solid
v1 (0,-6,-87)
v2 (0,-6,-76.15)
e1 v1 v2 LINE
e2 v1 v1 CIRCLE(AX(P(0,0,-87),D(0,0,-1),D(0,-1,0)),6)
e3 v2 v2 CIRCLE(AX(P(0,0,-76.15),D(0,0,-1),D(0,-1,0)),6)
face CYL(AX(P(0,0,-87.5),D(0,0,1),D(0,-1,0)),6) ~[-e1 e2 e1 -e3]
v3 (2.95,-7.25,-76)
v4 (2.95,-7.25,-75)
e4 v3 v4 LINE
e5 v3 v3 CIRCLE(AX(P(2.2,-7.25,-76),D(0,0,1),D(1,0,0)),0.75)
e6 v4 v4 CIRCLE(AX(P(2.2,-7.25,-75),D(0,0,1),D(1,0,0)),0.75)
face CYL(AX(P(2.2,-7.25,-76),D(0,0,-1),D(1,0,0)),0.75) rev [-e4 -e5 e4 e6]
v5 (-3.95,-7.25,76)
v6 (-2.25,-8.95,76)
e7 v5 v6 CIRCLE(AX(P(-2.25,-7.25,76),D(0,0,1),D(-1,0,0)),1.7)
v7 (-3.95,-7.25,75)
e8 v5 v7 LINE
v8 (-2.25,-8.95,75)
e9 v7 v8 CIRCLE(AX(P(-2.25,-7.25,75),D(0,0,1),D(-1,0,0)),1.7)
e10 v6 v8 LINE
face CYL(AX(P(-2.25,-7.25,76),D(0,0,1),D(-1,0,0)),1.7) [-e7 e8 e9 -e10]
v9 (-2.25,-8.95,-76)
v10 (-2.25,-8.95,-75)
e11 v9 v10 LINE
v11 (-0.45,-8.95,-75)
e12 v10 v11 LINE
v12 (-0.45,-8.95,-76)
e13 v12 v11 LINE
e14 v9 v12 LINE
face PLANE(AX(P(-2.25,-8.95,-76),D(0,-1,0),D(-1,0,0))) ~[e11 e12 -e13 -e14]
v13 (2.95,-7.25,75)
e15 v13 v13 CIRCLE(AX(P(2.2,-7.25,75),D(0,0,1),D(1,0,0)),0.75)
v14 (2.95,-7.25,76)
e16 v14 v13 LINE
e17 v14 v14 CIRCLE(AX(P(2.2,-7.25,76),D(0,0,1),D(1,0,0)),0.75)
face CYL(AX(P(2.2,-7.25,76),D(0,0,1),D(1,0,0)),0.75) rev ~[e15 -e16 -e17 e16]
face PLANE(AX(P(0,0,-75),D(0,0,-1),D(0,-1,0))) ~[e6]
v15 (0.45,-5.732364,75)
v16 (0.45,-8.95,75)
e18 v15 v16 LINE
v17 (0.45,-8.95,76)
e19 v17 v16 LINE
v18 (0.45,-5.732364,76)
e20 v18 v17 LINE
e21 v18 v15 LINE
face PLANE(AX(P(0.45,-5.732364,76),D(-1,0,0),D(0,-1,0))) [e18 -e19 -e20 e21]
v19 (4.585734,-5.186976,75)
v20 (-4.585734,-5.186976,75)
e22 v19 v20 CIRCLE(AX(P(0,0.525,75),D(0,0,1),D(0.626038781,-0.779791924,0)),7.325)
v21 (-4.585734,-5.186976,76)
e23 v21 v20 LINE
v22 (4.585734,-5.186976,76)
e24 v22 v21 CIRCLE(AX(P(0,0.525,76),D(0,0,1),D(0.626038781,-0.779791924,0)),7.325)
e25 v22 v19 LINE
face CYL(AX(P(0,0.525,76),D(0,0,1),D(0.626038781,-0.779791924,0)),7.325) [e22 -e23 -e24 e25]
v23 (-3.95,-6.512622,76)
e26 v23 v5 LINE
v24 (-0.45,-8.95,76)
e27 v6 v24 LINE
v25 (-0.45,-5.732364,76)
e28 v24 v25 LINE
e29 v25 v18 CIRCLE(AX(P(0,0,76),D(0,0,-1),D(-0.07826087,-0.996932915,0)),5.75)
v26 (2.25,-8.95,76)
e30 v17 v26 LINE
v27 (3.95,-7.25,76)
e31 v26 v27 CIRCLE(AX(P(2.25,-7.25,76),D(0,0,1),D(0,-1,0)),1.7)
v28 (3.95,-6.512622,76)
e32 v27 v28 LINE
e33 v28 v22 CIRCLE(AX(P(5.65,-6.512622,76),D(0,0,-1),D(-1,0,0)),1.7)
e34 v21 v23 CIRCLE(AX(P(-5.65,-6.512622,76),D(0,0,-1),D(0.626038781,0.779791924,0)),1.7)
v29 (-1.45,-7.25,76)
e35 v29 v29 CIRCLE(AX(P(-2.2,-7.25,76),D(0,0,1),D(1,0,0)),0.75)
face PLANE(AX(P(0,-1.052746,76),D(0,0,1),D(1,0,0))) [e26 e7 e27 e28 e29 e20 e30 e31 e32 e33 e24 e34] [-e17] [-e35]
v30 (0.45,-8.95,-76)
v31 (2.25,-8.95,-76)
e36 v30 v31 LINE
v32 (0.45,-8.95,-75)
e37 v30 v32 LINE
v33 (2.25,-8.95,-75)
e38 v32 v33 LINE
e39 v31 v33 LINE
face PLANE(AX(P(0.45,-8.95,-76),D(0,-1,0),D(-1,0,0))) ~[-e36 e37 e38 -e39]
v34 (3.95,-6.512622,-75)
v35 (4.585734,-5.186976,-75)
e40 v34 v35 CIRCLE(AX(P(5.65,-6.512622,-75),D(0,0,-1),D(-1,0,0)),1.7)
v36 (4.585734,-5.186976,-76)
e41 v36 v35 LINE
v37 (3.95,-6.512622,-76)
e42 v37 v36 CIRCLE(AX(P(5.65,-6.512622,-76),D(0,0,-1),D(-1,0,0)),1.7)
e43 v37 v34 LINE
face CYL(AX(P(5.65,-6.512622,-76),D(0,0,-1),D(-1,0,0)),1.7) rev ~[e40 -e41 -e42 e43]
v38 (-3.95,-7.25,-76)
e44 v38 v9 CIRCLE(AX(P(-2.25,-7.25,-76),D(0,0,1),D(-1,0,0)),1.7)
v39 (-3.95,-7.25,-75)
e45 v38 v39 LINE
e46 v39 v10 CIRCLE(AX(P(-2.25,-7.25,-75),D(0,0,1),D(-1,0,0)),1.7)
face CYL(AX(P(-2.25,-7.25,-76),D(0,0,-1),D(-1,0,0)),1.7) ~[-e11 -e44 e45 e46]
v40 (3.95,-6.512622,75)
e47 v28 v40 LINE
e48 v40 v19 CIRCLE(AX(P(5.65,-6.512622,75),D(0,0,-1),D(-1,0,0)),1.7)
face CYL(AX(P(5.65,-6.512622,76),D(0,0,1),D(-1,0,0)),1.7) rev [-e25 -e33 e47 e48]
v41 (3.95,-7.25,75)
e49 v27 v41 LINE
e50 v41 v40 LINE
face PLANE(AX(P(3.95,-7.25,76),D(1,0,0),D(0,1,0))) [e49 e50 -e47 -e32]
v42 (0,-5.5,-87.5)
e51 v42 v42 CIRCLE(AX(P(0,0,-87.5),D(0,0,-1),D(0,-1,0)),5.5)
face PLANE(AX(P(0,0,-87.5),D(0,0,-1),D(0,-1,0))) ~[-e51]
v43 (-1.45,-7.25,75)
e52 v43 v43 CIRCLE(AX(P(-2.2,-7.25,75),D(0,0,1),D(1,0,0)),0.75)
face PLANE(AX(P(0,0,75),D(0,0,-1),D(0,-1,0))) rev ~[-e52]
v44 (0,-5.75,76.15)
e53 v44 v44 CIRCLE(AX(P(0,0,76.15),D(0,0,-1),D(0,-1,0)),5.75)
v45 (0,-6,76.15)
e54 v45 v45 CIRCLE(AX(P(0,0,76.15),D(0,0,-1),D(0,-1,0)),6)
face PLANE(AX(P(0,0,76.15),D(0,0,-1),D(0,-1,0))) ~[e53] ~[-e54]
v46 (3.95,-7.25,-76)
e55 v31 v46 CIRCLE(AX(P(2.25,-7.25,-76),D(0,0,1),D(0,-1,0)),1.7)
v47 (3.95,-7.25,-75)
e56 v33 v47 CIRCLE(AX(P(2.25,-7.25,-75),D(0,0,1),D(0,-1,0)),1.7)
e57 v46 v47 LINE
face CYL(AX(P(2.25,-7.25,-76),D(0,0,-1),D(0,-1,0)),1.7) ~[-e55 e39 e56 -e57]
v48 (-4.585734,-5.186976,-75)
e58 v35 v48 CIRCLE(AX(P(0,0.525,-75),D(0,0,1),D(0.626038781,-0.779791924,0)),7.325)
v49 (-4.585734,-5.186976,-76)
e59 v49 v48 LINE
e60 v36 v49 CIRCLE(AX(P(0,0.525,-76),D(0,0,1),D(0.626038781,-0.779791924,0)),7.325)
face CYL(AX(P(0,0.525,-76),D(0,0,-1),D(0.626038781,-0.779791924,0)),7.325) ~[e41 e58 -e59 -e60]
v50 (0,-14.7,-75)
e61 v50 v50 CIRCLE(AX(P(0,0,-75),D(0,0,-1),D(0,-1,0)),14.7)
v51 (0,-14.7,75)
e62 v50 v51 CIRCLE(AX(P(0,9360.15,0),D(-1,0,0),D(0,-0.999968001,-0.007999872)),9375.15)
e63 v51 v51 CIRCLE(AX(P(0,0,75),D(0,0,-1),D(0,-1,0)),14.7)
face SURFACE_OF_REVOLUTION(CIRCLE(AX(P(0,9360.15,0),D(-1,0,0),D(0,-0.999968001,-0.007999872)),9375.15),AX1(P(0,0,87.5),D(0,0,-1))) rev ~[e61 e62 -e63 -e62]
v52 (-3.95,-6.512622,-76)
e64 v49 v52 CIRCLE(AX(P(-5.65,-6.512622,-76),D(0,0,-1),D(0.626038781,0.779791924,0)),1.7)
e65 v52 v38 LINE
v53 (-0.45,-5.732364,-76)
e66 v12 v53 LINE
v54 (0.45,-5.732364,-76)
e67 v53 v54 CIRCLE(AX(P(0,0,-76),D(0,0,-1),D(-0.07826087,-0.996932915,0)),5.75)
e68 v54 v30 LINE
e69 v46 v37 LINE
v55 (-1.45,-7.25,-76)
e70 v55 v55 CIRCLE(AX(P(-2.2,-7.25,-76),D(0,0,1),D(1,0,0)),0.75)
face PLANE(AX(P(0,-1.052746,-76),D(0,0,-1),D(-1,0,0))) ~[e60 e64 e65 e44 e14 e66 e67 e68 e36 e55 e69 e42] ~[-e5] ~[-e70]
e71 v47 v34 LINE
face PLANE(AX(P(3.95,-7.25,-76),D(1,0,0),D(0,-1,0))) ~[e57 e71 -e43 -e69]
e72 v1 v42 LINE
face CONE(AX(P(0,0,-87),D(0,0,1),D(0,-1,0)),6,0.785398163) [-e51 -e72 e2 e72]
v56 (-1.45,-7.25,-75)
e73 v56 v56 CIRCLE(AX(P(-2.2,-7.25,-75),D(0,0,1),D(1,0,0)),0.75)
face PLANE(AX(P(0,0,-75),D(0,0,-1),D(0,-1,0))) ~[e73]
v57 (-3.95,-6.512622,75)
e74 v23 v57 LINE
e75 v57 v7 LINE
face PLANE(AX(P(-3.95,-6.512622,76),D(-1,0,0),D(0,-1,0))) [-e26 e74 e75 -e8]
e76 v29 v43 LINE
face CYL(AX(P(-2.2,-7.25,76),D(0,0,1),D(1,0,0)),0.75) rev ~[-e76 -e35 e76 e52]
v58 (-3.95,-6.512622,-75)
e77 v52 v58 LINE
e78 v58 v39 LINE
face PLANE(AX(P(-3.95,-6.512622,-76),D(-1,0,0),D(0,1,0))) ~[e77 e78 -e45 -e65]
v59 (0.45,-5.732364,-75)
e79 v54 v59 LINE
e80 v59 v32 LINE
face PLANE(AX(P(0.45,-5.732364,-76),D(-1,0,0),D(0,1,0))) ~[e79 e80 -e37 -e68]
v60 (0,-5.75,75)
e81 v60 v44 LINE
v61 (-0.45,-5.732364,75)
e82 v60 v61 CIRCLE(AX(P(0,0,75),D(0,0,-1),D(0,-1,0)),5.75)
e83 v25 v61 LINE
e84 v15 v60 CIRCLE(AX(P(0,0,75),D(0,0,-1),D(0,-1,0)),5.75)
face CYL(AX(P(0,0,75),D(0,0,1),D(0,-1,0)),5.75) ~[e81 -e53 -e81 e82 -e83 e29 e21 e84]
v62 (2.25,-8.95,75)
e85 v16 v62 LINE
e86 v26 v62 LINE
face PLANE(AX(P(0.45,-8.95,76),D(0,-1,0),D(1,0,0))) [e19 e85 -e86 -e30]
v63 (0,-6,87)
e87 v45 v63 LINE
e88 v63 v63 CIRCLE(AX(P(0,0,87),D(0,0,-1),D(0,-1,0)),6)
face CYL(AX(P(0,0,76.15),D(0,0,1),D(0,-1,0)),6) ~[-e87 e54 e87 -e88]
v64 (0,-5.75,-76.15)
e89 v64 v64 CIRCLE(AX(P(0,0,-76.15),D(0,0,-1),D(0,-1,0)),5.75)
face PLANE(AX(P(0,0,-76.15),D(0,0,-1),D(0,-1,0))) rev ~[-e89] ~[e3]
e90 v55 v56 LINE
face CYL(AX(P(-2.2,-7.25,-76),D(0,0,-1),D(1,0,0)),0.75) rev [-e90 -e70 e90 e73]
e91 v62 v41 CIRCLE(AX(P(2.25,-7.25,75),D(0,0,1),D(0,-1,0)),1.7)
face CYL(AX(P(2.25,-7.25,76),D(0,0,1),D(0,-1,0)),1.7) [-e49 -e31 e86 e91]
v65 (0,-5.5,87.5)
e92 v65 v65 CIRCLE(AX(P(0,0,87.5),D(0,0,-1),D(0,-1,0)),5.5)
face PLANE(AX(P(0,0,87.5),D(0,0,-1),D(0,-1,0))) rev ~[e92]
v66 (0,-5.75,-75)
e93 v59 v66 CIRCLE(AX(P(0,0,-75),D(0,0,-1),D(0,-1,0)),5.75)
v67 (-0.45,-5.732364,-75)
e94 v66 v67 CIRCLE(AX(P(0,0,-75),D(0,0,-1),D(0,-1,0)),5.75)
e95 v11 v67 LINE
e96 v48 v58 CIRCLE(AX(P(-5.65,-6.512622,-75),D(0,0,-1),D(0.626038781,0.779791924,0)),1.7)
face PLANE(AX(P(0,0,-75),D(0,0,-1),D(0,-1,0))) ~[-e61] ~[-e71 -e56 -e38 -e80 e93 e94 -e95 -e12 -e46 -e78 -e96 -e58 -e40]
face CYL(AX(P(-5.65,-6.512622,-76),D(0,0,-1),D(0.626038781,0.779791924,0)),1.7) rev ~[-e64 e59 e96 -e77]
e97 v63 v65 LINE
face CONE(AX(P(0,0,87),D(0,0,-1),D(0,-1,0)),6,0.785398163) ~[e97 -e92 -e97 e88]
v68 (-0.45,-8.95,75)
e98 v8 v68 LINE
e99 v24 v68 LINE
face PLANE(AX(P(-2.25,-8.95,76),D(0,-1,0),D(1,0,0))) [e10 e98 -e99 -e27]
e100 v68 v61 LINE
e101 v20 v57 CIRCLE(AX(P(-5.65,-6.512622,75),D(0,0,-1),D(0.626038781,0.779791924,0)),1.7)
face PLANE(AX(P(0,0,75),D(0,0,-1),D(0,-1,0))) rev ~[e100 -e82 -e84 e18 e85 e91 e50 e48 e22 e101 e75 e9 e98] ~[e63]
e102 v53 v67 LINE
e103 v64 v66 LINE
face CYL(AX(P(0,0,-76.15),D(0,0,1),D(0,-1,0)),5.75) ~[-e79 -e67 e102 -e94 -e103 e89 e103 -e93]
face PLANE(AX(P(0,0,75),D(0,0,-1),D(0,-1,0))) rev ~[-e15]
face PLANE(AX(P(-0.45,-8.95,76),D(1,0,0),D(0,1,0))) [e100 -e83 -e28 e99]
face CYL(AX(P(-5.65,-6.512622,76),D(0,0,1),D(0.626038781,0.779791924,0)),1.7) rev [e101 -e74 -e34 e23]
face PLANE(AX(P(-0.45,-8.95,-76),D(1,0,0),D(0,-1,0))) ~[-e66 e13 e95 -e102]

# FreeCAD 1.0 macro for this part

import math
import FreeCAD as App
import Part
import Sketcher
from FreeCAD import Vector
Q = App.Units.Quantity


def edges_at(feature, points):
    """Names of the edges that pass closest to the given points."""
    edges = feature.Shape.Edges
    near = lambda p: min(range(len(edges)), key=lambda i: edges[i].distToShape(Part.Vertex(*p))[0])
    return sorted({f"Edge{near(p) + 1}" for p in points})

doc = App.newDocument("Part")
params = doc.addObject("Spreadsheet::Sheet", "Params")
for row, (alias, value) in enumerate([
    ("sketch1_width", "6 mm"),
    ("sketch1_height", "175 mm"),
    ("sketch1_radius", "9375.15 mm"),
    ("sketch1_width2", "0.25 mm"),
    ("sketch1_width3", "8.95 mm"),
    ("revolution_angle", "360 deg"),
    ("sketch2_diameter", "1.5 mm"),
    ("sketch2_radius", "1.7 mm"),
    ("sketch2_radius2", "5.75 mm"),
    ("sketch2_width", "1.8 mm"),
    ("pad1_length", "1 mm"),
    ("chamfer_size", "0.5 mm"),
], start=1):
    params.set(f"A{row}", alias)
    params.set(f"B{row}", "=" + value)
    params.setAlias(f"B{row}", alias)

body = doc.addObject("PartDesign::Body", "Body")

sketch1 = body.newObject("Sketcher::SketchObject", "Sketch")
sketch1.AttachmentSupport = (doc.getObject("YZ_Plane"), [""])
sketch1.MapMode = "FlatFace"
sketch1.addGeometry(Part.LineSegment(Vector(6, -87.5, 0), Vector(6, -76.15, 0)), False)
sketch1.addGeometry(Part.LineSegment(Vector(6, -76.15, 0), Vector(5.75, -76.15, 0)), False)
sketch1.addGeometry(Part.LineSegment(Vector(5.75, -76.15, 0), Vector(5.75, -75, 0)), False)
sketch1.addGeometry(Part.LineSegment(Vector(5.75, -75, 0), Vector(14.7, -75, 0)), False)
sketch1.addGeometry(Part.ArcOfCircle(Part.Circle(Vector(-9360.15, 0, 0), Vector(0, 0, 1), 9375.15), math.radians(-0.46), math.radians(0.46)), False)
sketch1.addGeometry(Part.LineSegment(Vector(14.7, 75, 0), Vector(5.75, 75, 0)), False)
sketch1.addGeometry(Part.LineSegment(Vector(5.75, 75, 0), Vector(5.75, 76.15, 0)), False)
sketch1.addGeometry(Part.LineSegment(Vector(5.75, 76.15, 0), Vector(6, 76.15, 0)), False)
sketch1.addGeometry(Part.LineSegment(Vector(6, 76.15, 0), Vector(6, 87.5, 0)), False)
sketch1.addGeometry(Part.LineSegment(Vector(6, 87.5, 0), Vector(0, 87.5, 0)), False)
sketch1.addGeometry(Part.LineSegment(Vector(0, 87.5, 0), Vector(0, -87.5, 0)), False)
sketch1.addGeometry(Part.LineSegment(Vector(0, -87.5, 0), Vector(6, -87.5, 0)), False)
sketch1.addConstraint(Sketcher.Constraint("Coincident", 0, 2, 1, 1))
sketch1.addConstraint(Sketcher.Constraint("Coincident", 1, 2, 2, 1))
sketch1.addConstraint(Sketcher.Constraint("Coincident", 2, 2, 3, 1))
sketch1.addConstraint(Sketcher.Constraint("Coincident", 3, 2, 4, 1))
sketch1.addConstraint(Sketcher.Constraint("Coincident", 4, 2, 5, 1))
sketch1.addConstraint(Sketcher.Constraint("Coincident", 5, 2, 6, 1))
sketch1.addConstraint(Sketcher.Constraint("Coincident", 6, 2, 7, 1))
sketch1.addConstraint(Sketcher.Constraint("Coincident", 7, 2, 8, 1))
sketch1.addConstraint(Sketcher.Constraint("Coincident", 8, 2, 9, 1))
sketch1.addConstraint(Sketcher.Constraint("Coincident", 9, 2, 10, 1))
sketch1.addConstraint(Sketcher.Constraint("Coincident", 10, 2, 11, 1))
sketch1.addConstraint(Sketcher.Constraint("Coincident", 11, 2, 0, 1))
sketch1.addConstraint(Sketcher.Constraint("Vertical", 0))
sketch1.addConstraint(Sketcher.Constraint("Horizontal", 1))
sketch1.addConstraint(Sketcher.Constraint("Vertical", 2))
sketch1.addConstraint(Sketcher.Constraint("Horizontal", 3))
sketch1.addConstraint(Sketcher.Constraint("Horizontal", 5))
sketch1.addConstraint(Sketcher.Constraint("Vertical", 6))
sketch1.addConstraint(Sketcher.Constraint("Horizontal", 7))
sketch1.addConstraint(Sketcher.Constraint("Vertical", 8))
sketch1.addConstraint(Sketcher.Constraint("Horizontal", 9))
sketch1.addConstraint(Sketcher.Constraint("Vertical", 10))
sketch1.addConstraint(Sketcher.Constraint("Horizontal", 11))
sketch1.addConstraint(Sketcher.Constraint("Symmetric", 9, 2, 10, 2, -1, 1))
sketch1.addConstraint(Sketcher.Constraint("Symmetric", 2, 2, 5, 2, -1))
sketch1.addConstraint(Sketcher.Constraint("Symmetric", 0, 2, 7, 2, -1))
sketch1.addConstraint(Sketcher.Constraint("PointOnObject", 4, 3, -1))
sketch1.addConstraint(Sketcher.Constraint("DistanceX", 9, 2, 9, 1, Q("6 mm")))
sketch1.addConstraint(Sketcher.Constraint("DistanceY", 10, 2, 10, 1, Q("175 mm")))
sketch1.addConstraint(Sketcher.Constraint("Radius", 4, Q("9375.15 mm")))
sketch1.addConstraint(Sketcher.Constraint("DistanceY", 2, 2, -1, 1, Q("75 mm")))
sketch1.addConstraint(Sketcher.Constraint("DistanceX", 1, 2, 1, 1, Q("0.25 mm")))
sketch1.addConstraint(Sketcher.Constraint("DistanceX", 3, 1, 3, 2, Q("8.95 mm")))
sketch1.addConstraint(Sketcher.Constraint("DistanceY", 0, 1, 0, 2, Q("11.35 mm")))
sketch1.setExpression("Constraints[27]", "Params.sketch1_width")
sketch1.setExpression("Constraints[28]", "Params.sketch1_height")
sketch1.setExpression("Constraints[29]", "Params.sketch1_radius")
sketch1.setExpression("Constraints[31]", "Params.sketch1_width2")
sketch1.setExpression("Constraints[32]", "Params.sketch1_width3")
revolution = body.newObject("PartDesign::Revolution", "Revolution")
revolution.Profile = sketch1
revolution.ReferenceAxis = (sketch1, ["V_Axis"])
revolution.setExpression("Angle", "Params.revolution_angle")

sketch2 = body.newObject("Sketcher::SketchObject", "Sketch001")
sketch2.AttachmentSupport = (doc.getObject("XY_Plane"), [""])
sketch2.MapMode = "FlatFace"
sketch2.AttachmentOffset = App.Placement(Vector(0, 0, 76), App.Rotation())
sketch2.addGeometry(Part.LineSegment(Vector(-0.5, -8.9, 0), Vector(-0.5, -5.7, 0)), False)
sketch2.addGeometry(Part.ArcOfCircle(Part.Circle(Vector(0, 0, 0), Vector(0, 0, 1), 5.8), math.radians(-86), math.radians(266)), False)
sketch2.addGeometry(Part.LineSegment(Vector(0.5, -5.7, 0), Vector(0.5, -8.9, 0)), False)
sketch2.addGeometry(Part.LineSegment(Vector(0.5, -8.9, 0), Vector(2.2, -8.9, 0)), False)
sketch2.addGeometry(Part.ArcOfCircle(Part.Circle(Vector(2.2, -7.2, 0), Vector(0, 0, 1), 1.7), math.radians(-90), math.radians(0)), False)
sketch2.addGeometry(Part.LineSegment(Vector(4, -7.2, 0), Vector(4, -6.5, 0)), False)
sketch2.addGeometry(Part.ArcOfCircle(Part.Circle(Vector(5.7, -6.5, 0), Vector(0, 0, 1), 1.7), math.radians(129), math.radians(180)), False)
sketch2.addGeometry(Part.ArcOfCircle(Part.Circle(Vector(0, 0.5, 0), Vector(0, 0, 1), 7.3), math.radians(-51), math.radians(231)), False)
sketch2.addGeometry(Part.ArcOfCircle(Part.Circle(Vector(-5.7, -6.5, 0), Vector(0, 0, 1), 1.7), math.radians(0), math.radians(51)), False)
sketch2.addGeometry(Part.LineSegment(Vector(-4, -6.5, 0), Vector(-4, -7.2, 0)), False)
sketch2.addGeometry(Part.ArcOfCircle(Part.Circle(Vector(-2.2, -7.2, 0), Vector(0, 0, 1), 1.7), math.radians(180), math.radians(270)), False)
sketch2.addGeometry(Part.LineSegment(Vector(-2.2, -8.9, 0), Vector(-0.5, -8.9, 0)), False)
sketch2.addGeometry(Part.Circle(Vector(-2.2, -7.2, 0), Vector(0, 0, 1), 0.8), False)
sketch2.addGeometry(Part.Circle(Vector(2.2, -7.2, 0), Vector(0, 0, 1), 0.8), False)
sketch2.addConstraint(Sketcher.Constraint("Coincident", 0, 2, 1, 2))
sketch2.addConstraint(Sketcher.Constraint("Coincident", 1, 1, 2, 1))
sketch2.addConstraint(Sketcher.Constraint("Coincident", 2, 2, 3, 1))
sketch2.addConstraint(Sketcher.Constraint("Tangent", 3, 2, 4, 1))
sketch2.addConstraint(Sketcher.Constraint("Tangent", 4, 2, 5, 1))
sketch2.addConstraint(Sketcher.Constraint("Tangent", 5, 2, 6, 2))
sketch2.addConstraint(Sketcher.Constraint("Tangent", 6, 1, 7, 1))
sketch2.addConstraint(Sketcher.Constraint("Tangent", 7, 2, 8, 2))
sketch2.addConstraint(Sketcher.Constraint("Tangent", 8, 1, 9, 1))
sketch2.addConstraint(Sketcher.Constraint("Tangent", 9, 2, 10, 1))
sketch2.addConstraint(Sketcher.Constraint("Tangent", 10, 2, 11, 1))
sketch2.addConstraint(Sketcher.Constraint("Coincident", 11, 2, 0, 1))
sketch2.addConstraint(Sketcher.Constraint("Vertical", 0))
sketch2.addConstraint(Sketcher.Constraint("Vertical", 2))
sketch2.addConstraint(Sketcher.Constraint("Horizontal", 3))
sketch2.addConstraint(Sketcher.Constraint("Vertical", 5))
sketch2.addConstraint(Sketcher.Constraint("Vertical", 9))
sketch2.addConstraint(Sketcher.Constraint("Horizontal", 11))
sketch2.addConstraint(Sketcher.Constraint("Coincident", 1, 3, -1, 1))
sketch2.addConstraint(Sketcher.Constraint("Equal", 4, 6))
sketch2.addConstraint(Sketcher.Constraint("Equal", 6, 8))
sketch2.addConstraint(Sketcher.Constraint("Equal", 8, 10))
sketch2.addConstraint(Sketcher.Constraint("Equal", 12, 13))
sketch2.addConstraint(Sketcher.Constraint("Symmetric", 6, 3, 8, 3, -2))
sketch2.addConstraint(Sketcher.Constraint("Symmetric", 12, 3, 13, 3, -2))
sketch2.addConstraint(Sketcher.Constraint("Symmetric", 2, 2, 11, 2, -2))
sketch2.addConstraint(Sketcher.Constraint("Horizontal", 10, 3, 12, 3))
sketch2.addConstraint(Sketcher.Constraint("Diameter", 12, Q("1.5 mm")))
sketch2.addConstraint(Sketcher.Constraint("Radius", 4, Q("1.7 mm")))
sketch2.addConstraint(Sketcher.Constraint("Radius", 1, Q("5.75 mm")))
sketch2.addConstraint(Sketcher.Constraint("DistanceX", 3, 1, 3, 2, Q("1.8 mm")))
sketch2.addConstraint(Sketcher.Constraint("Radius", 7, Q("7.325 mm")))
sketch2.addConstraint(Sketcher.Constraint("DistanceX", 12, 3, -1, 1, Q("2.2 mm")))
sketch2.addConstraint(Sketcher.Constraint("DistanceX", 8, 3, 4, 3, Q("7.9 mm")))
sketch2.addConstraint(Sketcher.Constraint("DistanceY", 4, 3, -1, 1, Q("7.25 mm")))
sketch2.addConstraint(Sketcher.Constraint("DistanceY", -1, 1, 7, 3, Q("0.525 mm")))
sketch2.setExpression("Constraints[27]", "Params.sketch2_diameter")
sketch2.setExpression("Constraints[28]", "Params.sketch2_radius")
sketch2.setExpression("Constraints[29]", "Params.sketch2_radius2")
sketch2.setExpression("Constraints[30]", "Params.sketch2_width")
pad1 = body.newObject("PartDesign::Pad", "Pad")
pad1.Profile = sketch2
pad1.setExpression("Length", "Params.pad1_length")
pad1.Reversed = True
doc.recompute()

mirrored = body.newObject("PartDesign::Mirrored", "Mirrored")
mirrored.Originals = [pad1]
mirrored.MirrorPlane = (doc.getObject("XY_Plane"), [""])
body.Tip = mirrored
doc.recompute()

chamfer = body.newObject("PartDesign::Chamfer", "Chamfer")
chamfer.Base = (mirrored, edges_at(mirrored, [(0, 6, 87.5), (0, 6, -87.5)]))
chamfer.setExpression("Size", "Params.chamfer_size")

doc.recompute()
